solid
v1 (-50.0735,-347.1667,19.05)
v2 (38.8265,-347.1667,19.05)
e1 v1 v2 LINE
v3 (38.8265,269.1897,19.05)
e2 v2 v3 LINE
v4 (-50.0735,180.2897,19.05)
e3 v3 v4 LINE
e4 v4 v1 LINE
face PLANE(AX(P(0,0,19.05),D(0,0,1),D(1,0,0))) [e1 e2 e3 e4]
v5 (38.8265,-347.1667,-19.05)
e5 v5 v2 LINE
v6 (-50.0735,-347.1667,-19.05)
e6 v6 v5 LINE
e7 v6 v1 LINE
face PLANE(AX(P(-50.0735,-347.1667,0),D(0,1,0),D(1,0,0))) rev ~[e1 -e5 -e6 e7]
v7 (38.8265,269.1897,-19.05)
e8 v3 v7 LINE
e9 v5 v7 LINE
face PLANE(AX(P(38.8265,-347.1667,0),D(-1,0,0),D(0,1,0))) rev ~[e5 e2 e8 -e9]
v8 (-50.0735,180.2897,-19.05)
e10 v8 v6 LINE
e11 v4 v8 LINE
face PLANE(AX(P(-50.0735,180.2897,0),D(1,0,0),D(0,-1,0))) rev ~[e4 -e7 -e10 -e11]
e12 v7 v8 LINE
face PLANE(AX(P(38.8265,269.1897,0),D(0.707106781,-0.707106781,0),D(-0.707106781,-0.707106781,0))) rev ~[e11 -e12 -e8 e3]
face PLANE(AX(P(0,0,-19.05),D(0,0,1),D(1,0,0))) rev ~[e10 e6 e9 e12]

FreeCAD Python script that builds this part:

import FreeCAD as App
import Part
import Sketcher

V = App.Vector
Q = App.Units.Quantity


def add_polygon(sketch, points):
    """Adds a closed chain of lines whose ends are joined by coincident constraints."""
    first, n = sketch.GeometryCount, len(points)
    for a, b in zip(points, points[1:] + points[:1]):
        sketch.addGeometry(Part.LineSegment(App.Vector(*a, 0), App.Vector(*b, 0)), False)
    for i in range(n):
        sketch.addConstraint(Sketcher.Constraint("Coincident", first + i, 2, first + (i + 1) % n, 1))

doc = App.newDocument("Part")
body = doc.addObject("PartDesign::Body", "Body")

# Sketch on XY plane
sketch1 = body.newObject("Sketcher::SketchObject", "Sketch")
sketch1.AttachmentSupport = (doc.getObject("XY_Plane"), [""])
sketch1.MapMode = "FlatFace"
add_polygon(sketch1, [(-50.0735, 180.2897), (-50.0735, -347.1667), (38.8265, -347.1667), (38.8265, 269.1897)])  # lines 0-3
sketch1.addConstraint([
    Sketcher.Constraint("Vertical", 0),
    Sketcher.Constraint("Horizontal", 1),
    Sketcher.Constraint("Vertical", 2),
    Sketcher.Constraint("DistanceX", 1, 1, 1, 2, Q("3.5 in")),
    Sketcher.Constraint("DistanceY", 3, 2, 2, 2, Q("3.5 in")),
    Sketcher.Constraint("DistanceY", 2, 1, 2, 2, Q("24.266 in")),
    Sketcher.Constraint("DistanceX", 0, 2, -1, 1, Q("1.9714 in")),
    Sketcher.Constraint("DistanceY", 0, 2, -1, 1, Q("347.1667 mm")),
])
pad1 = body.newObject("PartDesign::Pad", "Pad")
pad1.Profile = sketch1
pad1.Length = Q("1.5 in")
pad1.Midplane = True

doc.recompute()
